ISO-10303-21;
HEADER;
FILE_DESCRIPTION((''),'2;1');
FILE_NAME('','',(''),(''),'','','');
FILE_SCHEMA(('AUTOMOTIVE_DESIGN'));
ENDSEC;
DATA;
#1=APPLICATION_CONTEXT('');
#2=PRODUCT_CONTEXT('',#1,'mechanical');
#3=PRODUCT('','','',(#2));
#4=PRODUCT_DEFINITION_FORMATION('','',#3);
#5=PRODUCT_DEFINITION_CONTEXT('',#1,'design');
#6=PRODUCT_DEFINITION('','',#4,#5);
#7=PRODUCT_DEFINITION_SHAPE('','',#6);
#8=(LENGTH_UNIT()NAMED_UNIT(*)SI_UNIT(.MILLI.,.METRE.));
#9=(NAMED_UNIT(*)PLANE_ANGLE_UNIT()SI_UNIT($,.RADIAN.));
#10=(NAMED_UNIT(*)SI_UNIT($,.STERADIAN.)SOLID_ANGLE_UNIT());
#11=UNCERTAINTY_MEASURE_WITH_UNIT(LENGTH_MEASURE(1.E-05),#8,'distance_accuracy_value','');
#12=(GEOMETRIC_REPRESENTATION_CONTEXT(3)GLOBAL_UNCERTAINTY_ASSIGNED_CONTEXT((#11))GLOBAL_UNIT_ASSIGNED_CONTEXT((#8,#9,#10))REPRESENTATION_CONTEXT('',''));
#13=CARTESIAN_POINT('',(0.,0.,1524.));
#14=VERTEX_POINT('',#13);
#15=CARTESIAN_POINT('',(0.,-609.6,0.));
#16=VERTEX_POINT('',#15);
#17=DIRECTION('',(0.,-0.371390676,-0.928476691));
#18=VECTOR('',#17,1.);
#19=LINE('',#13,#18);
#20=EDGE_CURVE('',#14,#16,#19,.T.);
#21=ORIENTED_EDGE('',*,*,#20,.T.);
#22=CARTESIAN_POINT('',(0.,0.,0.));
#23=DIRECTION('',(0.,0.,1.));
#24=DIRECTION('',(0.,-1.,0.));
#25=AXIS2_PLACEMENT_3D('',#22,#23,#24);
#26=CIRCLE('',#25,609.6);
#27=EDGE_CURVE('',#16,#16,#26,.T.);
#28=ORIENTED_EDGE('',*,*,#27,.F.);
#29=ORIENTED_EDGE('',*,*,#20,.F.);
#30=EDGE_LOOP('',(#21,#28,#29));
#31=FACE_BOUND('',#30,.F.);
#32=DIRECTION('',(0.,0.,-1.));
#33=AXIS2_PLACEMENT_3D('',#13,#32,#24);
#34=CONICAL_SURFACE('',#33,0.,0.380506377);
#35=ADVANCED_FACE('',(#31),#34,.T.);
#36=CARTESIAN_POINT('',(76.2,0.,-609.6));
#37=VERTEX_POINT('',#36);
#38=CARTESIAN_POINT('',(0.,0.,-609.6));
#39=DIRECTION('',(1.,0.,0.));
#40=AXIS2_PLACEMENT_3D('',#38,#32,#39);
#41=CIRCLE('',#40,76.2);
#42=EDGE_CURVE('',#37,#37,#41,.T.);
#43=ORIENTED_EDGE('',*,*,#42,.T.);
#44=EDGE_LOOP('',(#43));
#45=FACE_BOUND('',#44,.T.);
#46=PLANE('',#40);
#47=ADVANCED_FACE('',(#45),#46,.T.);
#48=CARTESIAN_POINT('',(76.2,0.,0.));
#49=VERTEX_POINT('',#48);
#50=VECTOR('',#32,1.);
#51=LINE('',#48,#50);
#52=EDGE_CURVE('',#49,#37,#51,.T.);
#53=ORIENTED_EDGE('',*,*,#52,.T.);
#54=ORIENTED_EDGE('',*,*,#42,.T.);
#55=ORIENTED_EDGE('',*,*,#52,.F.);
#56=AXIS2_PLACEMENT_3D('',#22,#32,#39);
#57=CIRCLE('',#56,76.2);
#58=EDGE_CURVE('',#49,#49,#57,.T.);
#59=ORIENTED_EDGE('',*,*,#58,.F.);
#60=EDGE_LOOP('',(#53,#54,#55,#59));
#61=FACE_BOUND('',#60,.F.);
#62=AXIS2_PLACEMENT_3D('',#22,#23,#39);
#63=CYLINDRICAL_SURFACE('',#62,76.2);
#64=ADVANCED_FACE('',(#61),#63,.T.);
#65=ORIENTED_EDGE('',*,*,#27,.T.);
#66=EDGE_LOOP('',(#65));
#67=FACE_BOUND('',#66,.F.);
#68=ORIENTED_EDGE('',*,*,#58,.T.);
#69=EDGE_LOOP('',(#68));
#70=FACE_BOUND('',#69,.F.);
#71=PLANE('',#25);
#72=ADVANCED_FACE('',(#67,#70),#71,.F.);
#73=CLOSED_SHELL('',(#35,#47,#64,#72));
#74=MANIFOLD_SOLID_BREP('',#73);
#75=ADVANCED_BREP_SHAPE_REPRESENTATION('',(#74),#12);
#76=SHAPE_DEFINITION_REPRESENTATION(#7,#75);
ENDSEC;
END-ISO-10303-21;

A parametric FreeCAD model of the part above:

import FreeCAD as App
import Part
import Sketcher
Q = App.Units.Quantity


def add_polygon(sketch, points):
    """Adds a closed chain of lines whose ends are joined by coincident constraints."""
    first, n = sketch.GeometryCount, len(points)
    for a, b in zip(points, points[1:] + points[:1]):
        sketch.addGeometry(Part.LineSegment(App.Vector(*a, 0), App.Vector(*b, 0)), False)
    for i in range(n):
        sketch.addConstraint(Sketcher.Constraint("Coincident", first + i, 2, first + (i + 1) % n, 1))

doc = App.newDocument("Part")
body = doc.addObject("PartDesign::Body", "Body")

# Sketch on YZ plane
sketch1 = body.newObject("Sketcher::SketchObject", "Sketch")
sketch1.AttachmentSupport = (doc.getObject("YZ_Plane"), [""])
sketch1.MapMode = "FlatFace"
add_polygon(sketch1, [(-610, 0), (0, 0), (0, 1524)])  # lines 0-2
sketch1.addConstraint(Sketcher.Constraint("Horizontal", 0))
sketch1.addConstraint(Sketcher.Constraint("Vertical", 1))
sketch1.addConstraint(Sketcher.Constraint("Coincident", 0, 2, -1, 1))
sketch1.addConstraint(Sketcher.Constraint("DistanceX", 0, 1, 0, 2, Q("24 in")))
sketch1.addConstraint(Sketcher.Constraint("DistanceY", 1, 1, 1, 2, Q("60 in")))
revolution = body.newObject("PartDesign::Revolution", "Revolution")
revolution.Profile = sketch1
revolution.ReferenceAxis = (sketch1, ["V_Axis"])
revolution.Angle = 360

# Sketch on XY plane
sketch2 = body.newObject("Sketcher::SketchObject", "Sketch001")
sketch2.AttachmentSupport = (doc.getObject("XY_Plane"), [""])
sketch2.MapMode = "FlatFace"
sketch2.addGeometry(Part.Circle(App.Vector(0, 0, 0), App.Vector(0, 0, 1), 76), False)
sketch2.addConstraint(Sketcher.Constraint("Coincident", 0, 3, -1, 1))
sketch2.addConstraint(Sketcher.Constraint("Diameter", 0, Q("6 in")))
pad1 = body.newObject("PartDesign::Pad", "Pad")
pad1.Profile = sketch2
pad1.Length = Q("24 in")
pad1.Reversed = True

doc.recompute()
